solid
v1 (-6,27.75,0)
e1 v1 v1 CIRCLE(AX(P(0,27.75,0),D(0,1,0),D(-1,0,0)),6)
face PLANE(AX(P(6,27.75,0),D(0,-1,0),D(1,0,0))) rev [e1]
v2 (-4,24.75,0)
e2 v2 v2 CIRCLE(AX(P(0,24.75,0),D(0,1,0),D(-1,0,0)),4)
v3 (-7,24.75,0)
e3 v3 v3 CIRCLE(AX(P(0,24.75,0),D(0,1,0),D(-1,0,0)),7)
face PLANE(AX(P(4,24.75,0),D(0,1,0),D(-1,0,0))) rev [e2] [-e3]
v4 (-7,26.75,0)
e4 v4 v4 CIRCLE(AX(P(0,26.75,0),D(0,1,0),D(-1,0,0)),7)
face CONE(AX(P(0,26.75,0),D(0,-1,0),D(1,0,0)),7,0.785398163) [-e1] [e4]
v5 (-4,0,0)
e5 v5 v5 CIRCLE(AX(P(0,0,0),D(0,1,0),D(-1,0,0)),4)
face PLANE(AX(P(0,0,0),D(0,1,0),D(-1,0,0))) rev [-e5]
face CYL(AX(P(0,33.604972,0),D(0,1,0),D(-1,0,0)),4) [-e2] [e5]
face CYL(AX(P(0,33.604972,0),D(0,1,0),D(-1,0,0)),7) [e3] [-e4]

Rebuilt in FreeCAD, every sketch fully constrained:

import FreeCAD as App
import Part
import Sketcher
Q = App.Units.Quantity


def add_polygon(sketch, points):
    """Adds a closed chain of lines whose ends are joined by coincident constraints."""
    first, n = sketch.GeometryCount, len(points)
    for a, b in zip(points, points[1:] + points[:1]):
        sketch.addGeometry(Part.LineSegment(App.Vector(*a, 0), App.Vector(*b, 0)), False)
    for i in range(n):
        sketch.addConstraint(Sketcher.Constraint("Coincident", first + i, 2, first + (i + 1) % n, 1))

doc = App.newDocument("Part")
body = doc.addObject("PartDesign::Body", "Body")

# Sketch on XY plane
sketch1 = body.newObject("Sketcher::SketchObject", "Sketch")
sketch1.AttachmentSupport = (doc.getObject("XY_Plane"), [""])
sketch1.MapMode = "FlatFace"
add_polygon(sketch1, [(0, 0), (4, 0), (4, 24.75), (7, 24.75), (7, 26.75), (6, 27.75), (0, 27.75)])  # lines 0-6
sketch1.addConstraint([
    Sketcher.Constraint("Horizontal", 0),
    Sketcher.Constraint("Vertical", 1),
    Sketcher.Constraint("Horizontal", 2),
    Sketcher.Constraint("Vertical", 3),
    Sketcher.Constraint("Horizontal", 5),
    Sketcher.Constraint("Vertical", 6),
    Sketcher.Constraint("Coincident", 6, 2, -1, 1),
    Sketcher.Constraint("DistanceX", 0, 1, 0, 2, 4.0),
    Sketcher.Constraint("DistanceX", 2, 1, 2, 2, 3.0),
    Sketcher.Constraint("DistanceX", 5, 2, 5, 1, 6.0),
    Sketcher.Constraint("DistanceY", 3, 1, 3, 2, 2.0),
    Sketcher.Constraint("Angle", 4, Q("135 deg")),
    Sketcher.Constraint("DistanceY", 1, 1, 1, 2, 24.75),
])
revolution = body.newObject("PartDesign::Revolution", "Revolution")
revolution.Profile = sketch1
revolution.ReferenceAxis = (sketch1, ["V_Axis"])
revolution.Angle = 360

doc.recompute()
